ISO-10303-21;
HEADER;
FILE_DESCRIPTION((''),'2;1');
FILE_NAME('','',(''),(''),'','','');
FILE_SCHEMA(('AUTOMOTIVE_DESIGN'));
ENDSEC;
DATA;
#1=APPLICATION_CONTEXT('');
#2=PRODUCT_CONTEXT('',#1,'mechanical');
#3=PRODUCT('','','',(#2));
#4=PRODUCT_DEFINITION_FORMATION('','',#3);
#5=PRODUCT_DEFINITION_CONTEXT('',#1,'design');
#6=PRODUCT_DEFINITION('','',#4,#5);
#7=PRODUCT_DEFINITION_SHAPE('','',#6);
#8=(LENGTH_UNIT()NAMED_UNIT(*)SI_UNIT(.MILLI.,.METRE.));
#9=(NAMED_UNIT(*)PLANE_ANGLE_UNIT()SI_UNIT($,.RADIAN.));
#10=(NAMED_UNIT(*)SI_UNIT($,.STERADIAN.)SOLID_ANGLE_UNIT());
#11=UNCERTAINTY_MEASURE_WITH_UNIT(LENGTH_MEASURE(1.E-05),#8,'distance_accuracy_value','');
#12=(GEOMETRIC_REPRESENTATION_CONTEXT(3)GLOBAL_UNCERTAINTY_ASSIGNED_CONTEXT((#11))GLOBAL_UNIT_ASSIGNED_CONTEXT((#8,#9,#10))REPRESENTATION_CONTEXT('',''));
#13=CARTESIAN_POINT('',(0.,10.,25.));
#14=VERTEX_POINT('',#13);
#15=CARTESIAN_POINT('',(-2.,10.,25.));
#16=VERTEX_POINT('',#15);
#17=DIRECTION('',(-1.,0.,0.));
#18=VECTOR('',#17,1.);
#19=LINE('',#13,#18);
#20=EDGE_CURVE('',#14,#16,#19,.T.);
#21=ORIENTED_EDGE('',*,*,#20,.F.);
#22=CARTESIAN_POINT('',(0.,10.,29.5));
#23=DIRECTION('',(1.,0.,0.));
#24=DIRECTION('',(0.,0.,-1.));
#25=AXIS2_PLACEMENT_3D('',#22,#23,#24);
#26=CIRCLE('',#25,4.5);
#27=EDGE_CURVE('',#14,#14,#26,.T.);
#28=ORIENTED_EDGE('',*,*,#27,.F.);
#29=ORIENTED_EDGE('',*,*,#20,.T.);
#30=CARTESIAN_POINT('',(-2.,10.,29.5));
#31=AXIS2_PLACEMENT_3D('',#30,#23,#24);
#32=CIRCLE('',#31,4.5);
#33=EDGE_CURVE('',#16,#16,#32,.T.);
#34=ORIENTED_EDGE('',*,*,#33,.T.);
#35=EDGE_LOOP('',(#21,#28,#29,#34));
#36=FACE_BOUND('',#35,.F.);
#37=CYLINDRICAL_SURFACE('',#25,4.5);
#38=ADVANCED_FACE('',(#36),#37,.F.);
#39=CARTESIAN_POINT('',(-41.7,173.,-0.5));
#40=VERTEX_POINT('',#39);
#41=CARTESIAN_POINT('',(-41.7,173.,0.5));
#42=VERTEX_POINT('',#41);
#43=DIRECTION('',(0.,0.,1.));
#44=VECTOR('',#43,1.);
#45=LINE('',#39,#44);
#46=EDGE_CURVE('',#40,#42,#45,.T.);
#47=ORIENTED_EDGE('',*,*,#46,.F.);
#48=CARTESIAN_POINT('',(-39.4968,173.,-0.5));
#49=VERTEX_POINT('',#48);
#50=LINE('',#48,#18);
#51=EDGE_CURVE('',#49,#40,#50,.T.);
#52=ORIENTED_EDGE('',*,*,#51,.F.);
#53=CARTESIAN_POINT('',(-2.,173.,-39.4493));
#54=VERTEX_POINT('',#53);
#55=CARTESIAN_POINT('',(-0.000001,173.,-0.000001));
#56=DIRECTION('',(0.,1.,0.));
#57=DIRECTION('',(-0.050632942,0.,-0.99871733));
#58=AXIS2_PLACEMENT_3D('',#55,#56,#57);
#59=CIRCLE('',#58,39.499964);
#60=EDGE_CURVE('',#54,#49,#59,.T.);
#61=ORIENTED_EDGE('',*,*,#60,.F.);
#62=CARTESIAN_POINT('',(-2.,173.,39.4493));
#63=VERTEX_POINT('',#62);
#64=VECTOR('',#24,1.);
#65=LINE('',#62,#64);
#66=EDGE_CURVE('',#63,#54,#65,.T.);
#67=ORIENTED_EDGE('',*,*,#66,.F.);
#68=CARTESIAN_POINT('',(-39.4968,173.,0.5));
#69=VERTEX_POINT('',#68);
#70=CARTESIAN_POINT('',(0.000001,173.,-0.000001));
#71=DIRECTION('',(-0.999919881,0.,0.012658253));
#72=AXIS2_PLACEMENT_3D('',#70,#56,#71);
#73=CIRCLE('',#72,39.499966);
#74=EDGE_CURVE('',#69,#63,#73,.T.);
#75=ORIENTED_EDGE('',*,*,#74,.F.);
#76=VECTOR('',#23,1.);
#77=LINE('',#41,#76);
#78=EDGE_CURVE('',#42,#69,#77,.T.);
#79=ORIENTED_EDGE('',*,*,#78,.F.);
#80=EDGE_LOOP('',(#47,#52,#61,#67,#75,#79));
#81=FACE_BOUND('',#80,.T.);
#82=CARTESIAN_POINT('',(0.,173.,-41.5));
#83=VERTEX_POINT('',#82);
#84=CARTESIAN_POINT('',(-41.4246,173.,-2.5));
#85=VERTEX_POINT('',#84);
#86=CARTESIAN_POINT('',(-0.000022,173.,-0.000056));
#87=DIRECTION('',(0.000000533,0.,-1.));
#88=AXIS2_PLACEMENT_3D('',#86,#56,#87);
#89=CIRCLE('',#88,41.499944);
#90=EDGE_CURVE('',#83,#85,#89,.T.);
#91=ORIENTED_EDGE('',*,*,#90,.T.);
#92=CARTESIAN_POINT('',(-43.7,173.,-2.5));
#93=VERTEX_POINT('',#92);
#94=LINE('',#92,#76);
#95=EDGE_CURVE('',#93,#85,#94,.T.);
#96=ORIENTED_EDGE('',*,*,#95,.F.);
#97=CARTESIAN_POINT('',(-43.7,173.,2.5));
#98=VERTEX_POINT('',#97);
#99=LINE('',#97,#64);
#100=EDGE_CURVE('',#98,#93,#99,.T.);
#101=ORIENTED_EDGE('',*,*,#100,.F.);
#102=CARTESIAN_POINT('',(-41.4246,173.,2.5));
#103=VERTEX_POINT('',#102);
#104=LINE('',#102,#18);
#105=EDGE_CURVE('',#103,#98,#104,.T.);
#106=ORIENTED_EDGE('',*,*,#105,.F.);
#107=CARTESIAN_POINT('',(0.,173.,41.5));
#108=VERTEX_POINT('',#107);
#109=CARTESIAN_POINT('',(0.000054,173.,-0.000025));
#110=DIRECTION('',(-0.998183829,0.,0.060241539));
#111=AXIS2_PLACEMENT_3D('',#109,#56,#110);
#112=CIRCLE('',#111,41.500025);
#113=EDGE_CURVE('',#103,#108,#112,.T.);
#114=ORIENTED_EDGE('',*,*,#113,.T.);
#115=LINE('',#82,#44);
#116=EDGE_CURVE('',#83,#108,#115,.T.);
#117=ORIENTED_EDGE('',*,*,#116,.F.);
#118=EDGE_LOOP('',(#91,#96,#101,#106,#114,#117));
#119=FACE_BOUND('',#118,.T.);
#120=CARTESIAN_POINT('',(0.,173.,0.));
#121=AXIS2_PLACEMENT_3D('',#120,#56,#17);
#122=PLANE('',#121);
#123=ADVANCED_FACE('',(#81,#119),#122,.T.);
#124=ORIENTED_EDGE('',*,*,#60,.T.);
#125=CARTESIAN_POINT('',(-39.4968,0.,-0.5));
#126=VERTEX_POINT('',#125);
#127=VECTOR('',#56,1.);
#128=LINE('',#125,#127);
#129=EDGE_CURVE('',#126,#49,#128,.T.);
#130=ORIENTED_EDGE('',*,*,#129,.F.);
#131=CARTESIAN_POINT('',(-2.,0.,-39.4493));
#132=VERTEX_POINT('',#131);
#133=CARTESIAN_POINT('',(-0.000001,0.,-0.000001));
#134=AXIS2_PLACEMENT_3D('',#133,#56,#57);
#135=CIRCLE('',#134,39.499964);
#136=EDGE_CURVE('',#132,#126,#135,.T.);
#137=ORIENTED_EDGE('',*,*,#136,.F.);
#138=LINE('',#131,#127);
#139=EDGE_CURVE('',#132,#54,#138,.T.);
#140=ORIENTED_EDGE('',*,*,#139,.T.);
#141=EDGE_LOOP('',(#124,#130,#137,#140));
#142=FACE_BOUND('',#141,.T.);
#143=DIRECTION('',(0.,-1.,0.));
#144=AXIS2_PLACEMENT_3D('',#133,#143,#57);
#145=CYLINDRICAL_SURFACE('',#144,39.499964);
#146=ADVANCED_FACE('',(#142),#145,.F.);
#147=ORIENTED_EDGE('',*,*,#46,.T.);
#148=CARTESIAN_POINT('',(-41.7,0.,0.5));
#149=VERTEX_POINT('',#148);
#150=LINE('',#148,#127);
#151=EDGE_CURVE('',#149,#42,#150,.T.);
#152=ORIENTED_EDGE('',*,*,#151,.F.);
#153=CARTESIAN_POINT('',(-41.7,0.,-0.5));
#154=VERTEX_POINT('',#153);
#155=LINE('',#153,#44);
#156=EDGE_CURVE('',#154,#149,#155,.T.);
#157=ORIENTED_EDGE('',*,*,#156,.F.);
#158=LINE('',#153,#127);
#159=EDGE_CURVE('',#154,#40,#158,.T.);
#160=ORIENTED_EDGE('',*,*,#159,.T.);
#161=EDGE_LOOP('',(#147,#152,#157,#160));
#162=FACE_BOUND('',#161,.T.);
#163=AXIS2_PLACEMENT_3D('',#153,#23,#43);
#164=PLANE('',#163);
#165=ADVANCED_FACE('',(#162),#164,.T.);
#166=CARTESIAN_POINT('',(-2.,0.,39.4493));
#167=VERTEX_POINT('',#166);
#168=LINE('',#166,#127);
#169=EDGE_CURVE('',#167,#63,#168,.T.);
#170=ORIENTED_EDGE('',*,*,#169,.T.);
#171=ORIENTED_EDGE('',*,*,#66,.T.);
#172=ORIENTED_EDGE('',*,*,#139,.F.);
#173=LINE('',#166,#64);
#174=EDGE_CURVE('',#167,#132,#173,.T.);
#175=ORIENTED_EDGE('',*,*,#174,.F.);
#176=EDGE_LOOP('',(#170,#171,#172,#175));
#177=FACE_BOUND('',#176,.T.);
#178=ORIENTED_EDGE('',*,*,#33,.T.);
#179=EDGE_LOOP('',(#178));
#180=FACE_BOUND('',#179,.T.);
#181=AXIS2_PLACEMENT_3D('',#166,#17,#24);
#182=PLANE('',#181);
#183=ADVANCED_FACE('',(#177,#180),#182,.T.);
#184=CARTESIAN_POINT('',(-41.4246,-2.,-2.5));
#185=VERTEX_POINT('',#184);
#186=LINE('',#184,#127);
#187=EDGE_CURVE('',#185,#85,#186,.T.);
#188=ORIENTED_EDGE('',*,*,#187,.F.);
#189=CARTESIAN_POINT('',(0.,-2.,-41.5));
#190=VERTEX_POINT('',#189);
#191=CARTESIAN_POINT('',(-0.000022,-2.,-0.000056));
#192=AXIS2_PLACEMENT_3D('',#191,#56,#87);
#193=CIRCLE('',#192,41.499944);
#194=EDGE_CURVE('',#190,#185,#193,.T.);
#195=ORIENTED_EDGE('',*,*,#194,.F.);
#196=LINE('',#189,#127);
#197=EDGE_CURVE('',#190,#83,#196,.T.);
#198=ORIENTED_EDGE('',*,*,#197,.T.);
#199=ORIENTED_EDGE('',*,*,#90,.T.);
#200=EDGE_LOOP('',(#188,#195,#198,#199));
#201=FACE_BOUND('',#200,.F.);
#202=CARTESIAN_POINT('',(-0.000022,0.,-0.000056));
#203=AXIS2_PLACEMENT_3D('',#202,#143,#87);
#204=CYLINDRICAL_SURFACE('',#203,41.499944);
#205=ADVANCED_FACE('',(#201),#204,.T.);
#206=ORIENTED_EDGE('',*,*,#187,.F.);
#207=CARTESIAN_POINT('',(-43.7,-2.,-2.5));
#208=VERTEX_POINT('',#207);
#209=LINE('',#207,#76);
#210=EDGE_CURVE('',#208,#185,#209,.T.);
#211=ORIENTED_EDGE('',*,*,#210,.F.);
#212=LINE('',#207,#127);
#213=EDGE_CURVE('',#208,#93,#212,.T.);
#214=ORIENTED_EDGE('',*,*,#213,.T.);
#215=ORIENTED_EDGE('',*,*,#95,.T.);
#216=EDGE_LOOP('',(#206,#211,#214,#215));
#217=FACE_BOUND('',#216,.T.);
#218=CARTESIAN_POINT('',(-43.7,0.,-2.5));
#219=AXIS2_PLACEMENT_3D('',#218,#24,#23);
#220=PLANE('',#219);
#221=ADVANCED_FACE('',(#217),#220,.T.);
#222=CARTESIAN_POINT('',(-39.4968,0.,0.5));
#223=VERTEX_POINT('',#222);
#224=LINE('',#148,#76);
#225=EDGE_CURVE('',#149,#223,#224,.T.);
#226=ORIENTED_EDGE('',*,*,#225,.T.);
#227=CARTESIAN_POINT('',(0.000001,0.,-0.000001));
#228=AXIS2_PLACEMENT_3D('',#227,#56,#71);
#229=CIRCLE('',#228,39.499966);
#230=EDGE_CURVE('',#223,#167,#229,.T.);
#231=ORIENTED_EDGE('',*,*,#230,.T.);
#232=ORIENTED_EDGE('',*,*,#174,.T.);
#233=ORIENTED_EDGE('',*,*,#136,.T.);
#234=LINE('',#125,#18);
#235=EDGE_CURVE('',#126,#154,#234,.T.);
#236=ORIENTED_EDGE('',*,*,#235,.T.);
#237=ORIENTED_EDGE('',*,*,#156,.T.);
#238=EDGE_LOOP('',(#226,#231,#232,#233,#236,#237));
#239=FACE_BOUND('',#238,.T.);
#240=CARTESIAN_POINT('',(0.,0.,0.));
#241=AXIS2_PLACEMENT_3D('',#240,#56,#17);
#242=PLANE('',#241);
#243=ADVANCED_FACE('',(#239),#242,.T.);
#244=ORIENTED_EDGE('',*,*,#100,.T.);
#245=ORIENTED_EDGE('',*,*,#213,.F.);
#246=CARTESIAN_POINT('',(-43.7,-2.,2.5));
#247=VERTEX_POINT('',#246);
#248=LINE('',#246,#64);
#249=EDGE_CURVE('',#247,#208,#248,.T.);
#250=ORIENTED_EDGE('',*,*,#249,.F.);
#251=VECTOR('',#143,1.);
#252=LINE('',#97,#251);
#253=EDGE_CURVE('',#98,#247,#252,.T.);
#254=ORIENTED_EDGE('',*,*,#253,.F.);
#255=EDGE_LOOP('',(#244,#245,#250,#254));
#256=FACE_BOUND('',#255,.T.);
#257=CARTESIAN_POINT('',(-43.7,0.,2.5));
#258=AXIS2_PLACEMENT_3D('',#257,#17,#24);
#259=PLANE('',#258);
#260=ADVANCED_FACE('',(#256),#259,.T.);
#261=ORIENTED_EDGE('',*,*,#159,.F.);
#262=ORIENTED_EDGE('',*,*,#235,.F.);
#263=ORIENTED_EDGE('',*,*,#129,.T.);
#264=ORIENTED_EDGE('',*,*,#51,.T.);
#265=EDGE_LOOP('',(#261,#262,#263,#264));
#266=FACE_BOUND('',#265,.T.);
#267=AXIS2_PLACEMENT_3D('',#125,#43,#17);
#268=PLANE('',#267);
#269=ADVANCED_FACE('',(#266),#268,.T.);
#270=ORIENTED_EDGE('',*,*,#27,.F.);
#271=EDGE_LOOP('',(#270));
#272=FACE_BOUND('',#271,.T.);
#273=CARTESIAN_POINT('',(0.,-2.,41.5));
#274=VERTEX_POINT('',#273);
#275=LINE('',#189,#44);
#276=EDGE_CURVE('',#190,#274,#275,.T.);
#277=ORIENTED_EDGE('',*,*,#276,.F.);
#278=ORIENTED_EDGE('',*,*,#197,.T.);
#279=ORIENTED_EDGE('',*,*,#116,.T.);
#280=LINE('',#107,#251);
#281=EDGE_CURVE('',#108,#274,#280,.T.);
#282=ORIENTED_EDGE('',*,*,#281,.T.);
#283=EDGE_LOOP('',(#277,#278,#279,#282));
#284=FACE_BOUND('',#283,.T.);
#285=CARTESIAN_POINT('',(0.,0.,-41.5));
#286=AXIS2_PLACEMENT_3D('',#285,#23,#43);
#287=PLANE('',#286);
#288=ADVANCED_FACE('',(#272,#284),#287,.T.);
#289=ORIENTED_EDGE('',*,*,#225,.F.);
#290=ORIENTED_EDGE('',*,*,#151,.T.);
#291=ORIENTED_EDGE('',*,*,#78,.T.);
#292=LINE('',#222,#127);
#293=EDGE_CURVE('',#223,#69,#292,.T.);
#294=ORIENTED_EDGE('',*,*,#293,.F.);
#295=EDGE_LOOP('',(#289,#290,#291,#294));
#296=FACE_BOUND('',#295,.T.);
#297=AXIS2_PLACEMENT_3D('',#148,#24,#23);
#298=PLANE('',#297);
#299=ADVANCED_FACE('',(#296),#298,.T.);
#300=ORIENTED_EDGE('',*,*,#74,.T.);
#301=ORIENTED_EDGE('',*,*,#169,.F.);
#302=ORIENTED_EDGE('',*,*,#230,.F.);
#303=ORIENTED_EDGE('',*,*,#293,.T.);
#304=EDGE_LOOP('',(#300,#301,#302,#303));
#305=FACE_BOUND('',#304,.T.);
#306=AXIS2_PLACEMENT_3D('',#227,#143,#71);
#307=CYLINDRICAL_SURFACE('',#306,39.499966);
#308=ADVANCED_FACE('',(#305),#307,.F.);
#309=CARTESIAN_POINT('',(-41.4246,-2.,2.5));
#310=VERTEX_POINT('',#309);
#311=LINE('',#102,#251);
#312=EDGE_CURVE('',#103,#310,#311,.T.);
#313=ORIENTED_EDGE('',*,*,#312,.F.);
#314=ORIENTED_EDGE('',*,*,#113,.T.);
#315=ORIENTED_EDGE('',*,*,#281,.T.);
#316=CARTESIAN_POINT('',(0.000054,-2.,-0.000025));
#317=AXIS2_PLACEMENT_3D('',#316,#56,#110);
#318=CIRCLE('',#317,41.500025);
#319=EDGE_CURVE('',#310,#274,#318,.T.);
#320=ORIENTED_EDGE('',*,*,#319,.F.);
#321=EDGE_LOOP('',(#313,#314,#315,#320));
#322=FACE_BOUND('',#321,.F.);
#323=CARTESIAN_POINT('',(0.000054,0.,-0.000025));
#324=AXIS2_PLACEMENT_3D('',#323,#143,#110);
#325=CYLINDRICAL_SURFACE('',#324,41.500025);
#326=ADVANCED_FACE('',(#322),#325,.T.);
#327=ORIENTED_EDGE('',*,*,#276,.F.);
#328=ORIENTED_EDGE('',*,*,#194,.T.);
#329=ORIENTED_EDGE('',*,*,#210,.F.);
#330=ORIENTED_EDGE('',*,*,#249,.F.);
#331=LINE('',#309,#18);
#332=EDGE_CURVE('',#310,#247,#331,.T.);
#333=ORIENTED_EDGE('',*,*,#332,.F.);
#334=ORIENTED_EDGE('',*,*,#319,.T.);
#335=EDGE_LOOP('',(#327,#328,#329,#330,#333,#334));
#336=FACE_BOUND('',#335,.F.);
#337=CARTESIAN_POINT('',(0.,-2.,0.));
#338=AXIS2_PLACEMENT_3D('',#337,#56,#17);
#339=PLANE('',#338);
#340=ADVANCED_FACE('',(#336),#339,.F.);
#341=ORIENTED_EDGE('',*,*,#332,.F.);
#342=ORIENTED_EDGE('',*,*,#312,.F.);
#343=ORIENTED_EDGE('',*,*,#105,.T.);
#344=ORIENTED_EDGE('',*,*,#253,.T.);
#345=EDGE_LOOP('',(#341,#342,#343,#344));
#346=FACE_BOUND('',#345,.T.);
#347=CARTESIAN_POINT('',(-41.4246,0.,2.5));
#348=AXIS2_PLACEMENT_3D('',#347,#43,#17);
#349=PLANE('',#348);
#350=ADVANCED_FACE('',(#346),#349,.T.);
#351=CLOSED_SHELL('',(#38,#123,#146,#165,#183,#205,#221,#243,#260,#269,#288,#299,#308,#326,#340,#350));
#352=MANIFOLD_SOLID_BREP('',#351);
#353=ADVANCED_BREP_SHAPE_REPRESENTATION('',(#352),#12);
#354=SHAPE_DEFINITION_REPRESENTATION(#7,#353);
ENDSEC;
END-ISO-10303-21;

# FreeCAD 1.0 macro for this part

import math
import FreeCAD as App
import Part
import Sketcher
from FreeCAD import Vector
Q = App.Units.Quantity

doc = App.newDocument("Part")
body = doc.addObject("PartDesign::Body", "Body")

# Sketch on XZ plane
sketch1 = body.newObject("Sketcher::SketchObject", "Sketch")
sketch1.AttachmentSupport = (doc.getObject("XZ_Plane"), [""])
sketch1.MapMode = "FlatFace"
sketch1.addGeometry([
    Part.LineSegment(Vector(0, 41.5, 0), Vector(0, -41.5, 0)),  # 0
    Part.ArcOfCircle(Part.Circle(Vector(0, 0, 0), Vector(0, 0, 1), 41.5), math.radians(-177), math.radians(-90)),  # 1
    Part.LineSegment(Vector(-41.4, -2.5, 0), Vector(-43.7, -2.5, 0)),  # 2
    Part.LineSegment(Vector(-43.7, -2.5, 0), Vector(-43.7, 2.5, 0)),  # 3
    Part.LineSegment(Vector(-43.7, 2.5, 0), Vector(-41.4, 2.5, 0)),  # 4
    Part.ArcOfCircle(Part.Circle(Vector(0, 0, 0), Vector(0, 0, 1), 41.5), math.radians(90), math.radians(177)),  # 5
], False)
sketch1.addConstraint([
    Sketcher.Constraint("Coincident", 0, 2, 1, 2),
    Sketcher.Constraint("Coincident", 1, 1, 2, 1),
    Sketcher.Constraint("Coincident", 2, 2, 3, 1),
    Sketcher.Constraint("Coincident", 3, 2, 4, 1),
    Sketcher.Constraint("Coincident", 4, 2, 5, 2),
    Sketcher.Constraint("Coincident", 5, 1, 0, 1),
    Sketcher.Constraint("Vertical", 0),
    Sketcher.Constraint("Horizontal", 2),
    Sketcher.Constraint("Vertical", 3),
    Sketcher.Constraint("Horizontal", 4),
    Sketcher.Constraint("Coincident", 1, 3, -1, 1),
    Sketcher.Constraint("Coincident", 5, 3, -1, 1),
    Sketcher.Constraint("Equal", 1, 5),
    Sketcher.Constraint("PointOnObject", 0, 2, -2),
    Sketcher.Constraint("Vertical", 1, 1, 4, 2),
    Sketcher.Constraint("Radius", 1, Q("41.5 mm")),
    Sketcher.Constraint("DistanceY", 3, 1, 3, 2, Q("5 mm")),
    Sketcher.Constraint("DistanceX", 2, 2, -1, 1, Q("43.7 mm")),
])
pad1 = body.newObject("PartDesign::Pad", "Pad")
pad1.Profile = sketch1
pad1.Length = 2

# Sketch on XZ plane
sketch2 = body.newObject("Sketcher::SketchObject", "Sketch001")
sketch2.AttachmentSupport = (doc.getObject("XZ_Plane"), [""])
sketch2.MapMode = "FlatFace"
sketch2.addGeometry([
    Part.LineSegment(Vector(0, 41.5, 0), Vector(0, -41.5, 0)),  # 0
    Part.ArcOfCircle(Part.Circle(Vector(0, 0, 0), Vector(0, 0, 1), 41.5), math.radians(-177), math.radians(-90)),  # 1
    Part.LineSegment(Vector(-41.4, -2.5, 0), Vector(-43.7, -2.5, 0)),  # 2
    Part.LineSegment(Vector(-43.7, -2.5, 0), Vector(-43.7, 2.5, 0)),  # 3
    Part.LineSegment(Vector(-43.7, 2.5, 0), Vector(-41.4, 2.5, 0)),  # 4
    Part.ArcOfCircle(Part.Circle(Vector(0, 0, 0), Vector(0, 0, 1), 41.5), math.radians(90), math.radians(177)),  # 5
    Part.LineSegment(Vector(-2, -39.4, 0), Vector(-2, 39.4, 0)),  # 6
    Part.ArcOfCircle(Part.Circle(Vector(0, 0, 0), Vector(0, 0, 1), 39.5), math.radians(93), math.radians(179)),  # 7
    Part.LineSegment(Vector(-39.5, 0.5, 0), Vector(-41.7, 0.5, 0)),  # 8
    Part.LineSegment(Vector(-41.7, 0.5, 0), Vector(-41.7, -0.5, 0)),  # 9
    Part.LineSegment(Vector(-41.7, -0.5, 0), Vector(-39.5, -0.5, 0)),  # 10
    Part.ArcOfCircle(Part.Circle(Vector(0, 0, 0), Vector(0, 0, 1), 39.5), math.radians(-179), math.radians(-93)),  # 11
], False)
sketch2.addConstraint([
    Sketcher.Constraint("Coincident", 0, 2, 1, 2),
    Sketcher.Constraint("Coincident", 1, 1, 2, 1),
    Sketcher.Constraint("Coincident", 2, 2, 3, 1),
    Sketcher.Constraint("Coincident", 3, 2, 4, 1),
    Sketcher.Constraint("Coincident", 4, 2, 5, 2),
    Sketcher.Constraint("Coincident", 5, 1, 0, 1),
    Sketcher.Constraint("Coincident", 6, 2, 7, 1),
    Sketcher.Constraint("Coincident", 7, 2, 8, 1),
    Sketcher.Constraint("Coincident", 8, 2, 9, 1),
    Sketcher.Constraint("Coincident", 9, 2, 10, 1),
    Sketcher.Constraint("Coincident", 10, 2, 11, 1),
    Sketcher.Constraint("Coincident", 11, 2, 6, 1),
    Sketcher.Constraint("Vertical", 0),
    Sketcher.Constraint("Horizontal", 2),
    Sketcher.Constraint("Vertical", 3),
    Sketcher.Constraint("Horizontal", 4),
    Sketcher.Constraint("Vertical", 6),
    Sketcher.Constraint("Horizontal", 8),
    Sketcher.Constraint("Vertical", 9),
    Sketcher.Constraint("Horizontal", 10),
    Sketcher.Constraint("Coincident", 1, 3, -1, 1),
    Sketcher.Constraint("Coincident", 5, 3, -1, 1),
    Sketcher.Constraint("Coincident", 7, 3, -1, 1),
    Sketcher.Constraint("Coincident", 11, 3, -1, 1),
    Sketcher.Constraint("Equal", 1, 5),
    Sketcher.Constraint("Equal", 7, 11),
    Sketcher.Constraint("PointOnObject", 0, 2, -2),
    Sketcher.Constraint("Vertical", 1, 1, 4, 2),
    Sketcher.Constraint("Vertical", 7, 2, 10, 2),
    Sketcher.Constraint("Radius", 1, Q("41.5 mm")),
    Sketcher.Constraint("DistanceY", 3, 1, 3, 2, Q("5 mm")),
    Sketcher.Constraint("DistanceX", 6, 2, -1, 1, Q("2 mm")),
    Sketcher.Constraint("DistanceY", 7, 2, 4, 2, Q("2 mm")),
    Sketcher.Constraint("DistanceX", 3, 2, 8, 2, Q("2 mm")),
    Sketcher.Constraint("Radius", 7, Q("39.5 mm")),
    Sketcher.Constraint("DistanceX", 2, 2, -1, 1, Q("43.7 mm")),
])
pad2 = body.newObject("PartDesign::Pad", "Pad001")
pad2.Profile = sketch2
pad2.Length = 173
pad2.Reversed = True

# Sketch on YZ plane
sketch3 = body.newObject("Sketcher::SketchObject", "Sketch002")
sketch3.AttachmentSupport = (doc.getObject("YZ_Plane"), [""])
sketch3.MapMode = "FlatFace"
sketch3.addGeometry(Part.Circle(Vector(10, 29.5, 0), Vector(0, 0, 1), 4.5), False)
sketch3.addConstraint([
    Sketcher.Constraint("Diameter", 0, Q("9 mm")),
    Sketcher.Constraint("DistanceX", -1, 1, 0, 3, Q("10 mm")),
    Sketcher.Constraint("DistanceY", -1, 1, 0, 3, Q("29.5 mm")),
])
pocket1 = body.newObject("PartDesign::Pocket", "Pocket")
pocket1.Profile = sketch3
pocket1.Length = 10

doc.recompute()
